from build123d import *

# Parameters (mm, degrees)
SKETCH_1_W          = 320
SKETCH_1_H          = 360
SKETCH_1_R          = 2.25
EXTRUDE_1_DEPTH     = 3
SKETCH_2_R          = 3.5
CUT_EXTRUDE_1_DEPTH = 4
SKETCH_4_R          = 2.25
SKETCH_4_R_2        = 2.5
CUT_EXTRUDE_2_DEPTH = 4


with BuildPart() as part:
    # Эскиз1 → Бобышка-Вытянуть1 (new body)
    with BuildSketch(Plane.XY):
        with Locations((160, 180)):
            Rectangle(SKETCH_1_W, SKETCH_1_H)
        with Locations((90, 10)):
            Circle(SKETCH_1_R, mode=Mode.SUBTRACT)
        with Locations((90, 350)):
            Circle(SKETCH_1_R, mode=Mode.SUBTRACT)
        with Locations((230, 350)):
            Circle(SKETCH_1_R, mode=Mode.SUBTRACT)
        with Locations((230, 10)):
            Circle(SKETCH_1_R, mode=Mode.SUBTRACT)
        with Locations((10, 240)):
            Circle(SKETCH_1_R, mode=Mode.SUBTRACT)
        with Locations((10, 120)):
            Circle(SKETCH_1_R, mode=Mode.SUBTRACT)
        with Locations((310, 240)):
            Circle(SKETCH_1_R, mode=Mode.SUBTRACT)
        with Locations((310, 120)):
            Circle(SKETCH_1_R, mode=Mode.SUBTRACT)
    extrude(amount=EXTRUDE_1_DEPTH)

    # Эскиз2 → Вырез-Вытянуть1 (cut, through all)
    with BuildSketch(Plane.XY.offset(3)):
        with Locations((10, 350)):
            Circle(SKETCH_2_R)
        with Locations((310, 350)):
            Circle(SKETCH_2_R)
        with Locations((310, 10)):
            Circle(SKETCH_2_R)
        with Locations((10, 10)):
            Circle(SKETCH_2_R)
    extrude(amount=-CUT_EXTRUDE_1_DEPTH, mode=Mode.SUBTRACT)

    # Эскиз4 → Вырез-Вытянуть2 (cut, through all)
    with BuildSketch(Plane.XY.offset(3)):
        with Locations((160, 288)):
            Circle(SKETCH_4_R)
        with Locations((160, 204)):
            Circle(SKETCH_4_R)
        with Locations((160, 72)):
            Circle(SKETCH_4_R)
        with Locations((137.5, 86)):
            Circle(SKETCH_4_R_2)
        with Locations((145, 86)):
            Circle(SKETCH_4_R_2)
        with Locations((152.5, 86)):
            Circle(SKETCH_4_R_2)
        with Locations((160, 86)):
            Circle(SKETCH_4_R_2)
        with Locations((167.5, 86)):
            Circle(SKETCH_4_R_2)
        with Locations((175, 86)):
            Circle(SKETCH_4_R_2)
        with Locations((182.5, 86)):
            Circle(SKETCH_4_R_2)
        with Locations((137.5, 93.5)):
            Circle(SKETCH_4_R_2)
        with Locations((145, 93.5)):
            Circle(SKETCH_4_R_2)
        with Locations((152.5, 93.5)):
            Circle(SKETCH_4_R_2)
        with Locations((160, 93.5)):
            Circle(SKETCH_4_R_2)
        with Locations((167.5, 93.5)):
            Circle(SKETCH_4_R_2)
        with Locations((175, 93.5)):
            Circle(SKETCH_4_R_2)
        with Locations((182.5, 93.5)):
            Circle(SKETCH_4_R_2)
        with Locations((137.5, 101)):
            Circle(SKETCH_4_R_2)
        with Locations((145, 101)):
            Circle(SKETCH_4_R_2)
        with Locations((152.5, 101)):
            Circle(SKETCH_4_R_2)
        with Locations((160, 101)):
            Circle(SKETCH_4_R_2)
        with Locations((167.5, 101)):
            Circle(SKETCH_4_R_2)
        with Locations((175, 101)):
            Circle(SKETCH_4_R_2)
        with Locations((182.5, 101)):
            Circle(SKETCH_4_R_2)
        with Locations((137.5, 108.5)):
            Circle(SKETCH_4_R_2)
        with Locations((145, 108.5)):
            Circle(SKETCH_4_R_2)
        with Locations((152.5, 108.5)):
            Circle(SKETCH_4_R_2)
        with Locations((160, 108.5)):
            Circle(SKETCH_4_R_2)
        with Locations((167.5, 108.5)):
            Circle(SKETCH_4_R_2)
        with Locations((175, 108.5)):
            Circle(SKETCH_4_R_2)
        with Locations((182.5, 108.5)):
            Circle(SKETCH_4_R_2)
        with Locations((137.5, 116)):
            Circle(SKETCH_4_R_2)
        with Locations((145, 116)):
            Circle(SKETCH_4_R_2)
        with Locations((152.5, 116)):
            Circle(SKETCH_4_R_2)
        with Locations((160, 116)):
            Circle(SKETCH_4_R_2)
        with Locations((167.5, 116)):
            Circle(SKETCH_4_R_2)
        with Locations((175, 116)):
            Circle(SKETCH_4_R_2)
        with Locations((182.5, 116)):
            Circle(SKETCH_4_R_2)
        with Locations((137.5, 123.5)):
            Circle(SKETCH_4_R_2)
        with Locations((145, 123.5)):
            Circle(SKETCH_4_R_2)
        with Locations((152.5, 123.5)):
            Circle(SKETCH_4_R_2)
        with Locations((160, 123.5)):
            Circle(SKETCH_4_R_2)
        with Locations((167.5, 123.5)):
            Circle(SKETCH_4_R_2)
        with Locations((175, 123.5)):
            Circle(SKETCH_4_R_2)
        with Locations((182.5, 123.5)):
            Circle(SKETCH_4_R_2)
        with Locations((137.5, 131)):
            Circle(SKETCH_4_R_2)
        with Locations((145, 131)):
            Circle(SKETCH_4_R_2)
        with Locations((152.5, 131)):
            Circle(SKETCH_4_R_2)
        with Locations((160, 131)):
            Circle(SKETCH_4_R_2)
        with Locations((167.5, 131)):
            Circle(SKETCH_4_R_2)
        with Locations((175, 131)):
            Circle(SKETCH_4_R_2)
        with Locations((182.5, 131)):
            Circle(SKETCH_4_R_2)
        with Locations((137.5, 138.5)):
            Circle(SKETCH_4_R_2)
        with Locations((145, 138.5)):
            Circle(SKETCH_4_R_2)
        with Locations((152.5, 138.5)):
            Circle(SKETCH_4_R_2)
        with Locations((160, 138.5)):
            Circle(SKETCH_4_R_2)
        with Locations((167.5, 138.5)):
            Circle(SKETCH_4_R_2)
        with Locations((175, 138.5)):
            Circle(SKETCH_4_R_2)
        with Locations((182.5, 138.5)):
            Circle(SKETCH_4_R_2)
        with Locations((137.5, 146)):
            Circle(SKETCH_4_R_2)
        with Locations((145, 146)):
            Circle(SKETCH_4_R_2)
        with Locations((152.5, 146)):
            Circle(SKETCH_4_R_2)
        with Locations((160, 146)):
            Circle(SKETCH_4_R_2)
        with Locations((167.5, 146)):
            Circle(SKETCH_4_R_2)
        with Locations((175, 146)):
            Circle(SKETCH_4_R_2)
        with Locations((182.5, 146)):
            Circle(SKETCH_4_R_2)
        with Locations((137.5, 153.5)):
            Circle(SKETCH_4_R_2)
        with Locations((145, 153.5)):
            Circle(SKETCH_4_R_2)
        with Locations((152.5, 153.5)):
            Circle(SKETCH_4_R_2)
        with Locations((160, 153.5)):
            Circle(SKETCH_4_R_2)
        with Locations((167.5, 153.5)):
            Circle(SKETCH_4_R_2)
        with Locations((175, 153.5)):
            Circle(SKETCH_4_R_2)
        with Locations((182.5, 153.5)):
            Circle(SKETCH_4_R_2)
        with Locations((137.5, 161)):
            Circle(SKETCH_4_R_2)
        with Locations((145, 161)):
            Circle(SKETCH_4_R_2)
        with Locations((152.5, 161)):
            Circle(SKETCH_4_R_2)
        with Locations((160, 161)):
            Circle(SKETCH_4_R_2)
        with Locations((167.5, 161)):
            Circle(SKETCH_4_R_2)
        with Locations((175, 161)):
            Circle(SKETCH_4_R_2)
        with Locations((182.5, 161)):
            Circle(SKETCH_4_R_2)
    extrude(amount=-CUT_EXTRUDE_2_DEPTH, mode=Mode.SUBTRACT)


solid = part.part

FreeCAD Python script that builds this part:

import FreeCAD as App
import Part
import Sketcher

V = App.Vector

doc = App.newDocument("Part")
body = doc.addObject("PartDesign::Body", "Body")

sketch1 = doc.addObject("Sketcher::SketchObject", "Sketch")
body.addObject(sketch1)
sketch1.AttachmentSupport = (doc.XY_Plane, [""])
sketch1.MapMode = "FlatFace"
sketch1.addGeometry([
    Part.LineSegment(V(0, 360, 0), V(0, 0, 0)),
    Part.LineSegment(V(0, 0, 0), V(320, 0, 0)),
    Part.LineSegment(V(320, 0, 0), V(320, 360, 0)),
    Part.LineSegment(V(320, 360, 0), V(0, 360, 0)),
    Part.Circle(V(90, 10, 0), V(0, 0, 1), 2.2),
    Part.Circle(V(10, 120, 0), V(0, 0, 1), 2.2),
    Part.Circle(V(230, 10, 0), V(0, 0, 1), 2.2),
    Part.Circle(V(310, 120, 0), V(0, 0, 1), 2.2),
    Part.Circle(V(10, 240, 0), V(0, 0, 1), 2.2),
    Part.Circle(V(90, 350, 0), V(0, 0, 1), 2.2),
    Part.Circle(V(310, 240, 0), V(0, 0, 1), 2.2),
    Part.Circle(V(230, 350, 0), V(0, 0, 1), 2.2),
], False)
sketch1.addConstraint([
    Sketcher.Constraint("Coincident", 0, 2, 1, 1),
    Sketcher.Constraint("Coincident", 1, 2, 2, 1),
    Sketcher.Constraint("Coincident", 2, 2, 3, 1),
    Sketcher.Constraint("Coincident", 3, 2, 0, 1),
    Sketcher.Constraint("Vertical", 0),
    Sketcher.Constraint("Horizontal", 1),
    Sketcher.Constraint("Vertical", 2),
    Sketcher.Constraint("Horizontal", 3),
    Sketcher.Constraint("Coincident", 0, 2, -1, 1),
    Sketcher.Constraint("Equal", 4, 5),
    Sketcher.Constraint("Equal", 5, 6),
    Sketcher.Constraint("Equal", 6, 7),
    Sketcher.Constraint("Equal", 7, 8),
    Sketcher.Constraint("Equal", 8, 9),
    Sketcher.Constraint("Equal", 9, 10),
    Sketcher.Constraint("Equal", 10, 11),
    Sketcher.Constraint("Horizontal", 4, 3, 6, 3),
    Sketcher.Constraint("Horizontal", 5, 3, 7, 3),
    Sketcher.Constraint("Horizontal", 8, 3, 10, 3),
    Sketcher.Constraint("Horizontal", 9, 3, 11, 3),
    Sketcher.Constraint("Vertical", 5, 3, 8, 3),
    Sketcher.Constraint("Vertical", 4, 3, 9, 3),
    Sketcher.Constraint("Vertical", 7, 3, 10, 3),
    Sketcher.Constraint("Vertical", 6, 3, 11, 3),
    Sketcher.Constraint("Diameter", 4, 4.5),
    Sketcher.Constraint("DistanceX", 1, 1, 1, 2, 320.0),
    Sketcher.Constraint("DistanceY", 0, 2, 0, 1, 360.0),
    Sketcher.Constraint("DistanceX", -1, 1, 4, 3, 90.0),
    Sketcher.Constraint("DistanceY", -1, 1, 4, 3, 10.0),
    Sketcher.Constraint("DistanceX", -1, 1, 5, 3, 10.0),
    Sketcher.Constraint("DistanceY", -1, 1, 5, 3, 120.0),
    Sketcher.Constraint("DistanceX", -1, 1, 6, 3, 230.0),
    Sketcher.Constraint("DistanceX", -1, 1, 7, 3, 310.0),
    Sketcher.Constraint("DistanceY", -1, 1, 8, 3, 240.0),
    Sketcher.Constraint("DistanceY", -1, 1, 9, 3, 350.0),
])
pad1 = doc.addObject("PartDesign::Pad", "Pad")
body.addObject(pad1)
pad1.Profile = sketch1
pad1.Length = 3

sketch2 = doc.addObject("Sketcher::SketchObject", "Sketch001")
body.addObject(sketch2)
sketch2.AttachmentSupport = (doc.XY_Plane, [""])
sketch2.MapMode = "FlatFace"
sketch2.AttachmentOffset = App.Placement(V(0, 0, 3), App.Rotation())
sketch2.addGeometry([
    Part.Circle(V(10, 350, 0), V(0, 0, 1), 3.5),
    Part.Circle(V(310, 350, 0), V(0, 0, 1), 3.5),
    Part.Circle(V(310, 10, 0), V(0, 0, 1), 3.5),
    Part.Circle(V(10, 10, 0), V(0, 0, 1), 3.5),
], False)
sketch2.addConstraint([
    Sketcher.Constraint("Equal", 0, 1),
    Sketcher.Constraint("Equal", 1, 2),
    Sketcher.Constraint("Equal", 2, 3),
    Sketcher.Constraint("Horizontal", 0, 3, 1, 3),
    Sketcher.Constraint("Horizontal", 2, 3, 3, 3),
    Sketcher.Constraint("Vertical", 1, 3, 2, 3),
    Sketcher.Constraint("Vertical", 0, 3, 3, 3),
    Sketcher.Constraint("Diameter", 0, 7.0),
    Sketcher.Constraint("DistanceX", -1, 1, 0, 3, 10.0),
    Sketcher.Constraint("DistanceY", -1, 1, 0, 3, 350.0),
    Sketcher.Constraint("DistanceX", -1, 1, 1, 3, 310.0),
    Sketcher.Constraint("DistanceY", -1, 1, 2, 3, 10.0),
])
pocket1 = doc.addObject("PartDesign::Pocket", "Pocket")
body.addObject(pocket1)
pocket1.Profile = sketch2
pocket1.Type = "ThroughAll"

sketch3 = doc.addObject("Sketcher::SketchObject", "Sketch002")
body.addObject(sketch3)
sketch3.AttachmentSupport = (doc.XY_Plane, [""])
sketch3.MapMode = "FlatFace"
sketch3.AttachmentOffset = App.Placement(V(0, 0, 3), App.Rotation())
sketch3.addGeometry([
    Part.Circle(V(160, 288, 0), V(0, 0, 1), 2.2),
    Part.Circle(V(160, 204, 0), V(0, 0, 1), 2.2),
    Part.Circle(V(160, 72, 0), V(0, 0, 1), 2.2),
    Part.Circle(V(137.5, 86, 0), V(0, 0, 1), 2.5),
    Part.Circle(V(145, 86, 0), V(0, 0, 1), 2.5),
    Part.Circle(V(152.5, 86, 0), V(0, 0, 1), 2.5),
    Part.Circle(V(160, 86, 0), V(0, 0, 1), 2.5),
    Part.Circle(V(167.5, 86, 0), V(0, 0, 1), 2.5),
    Part.Circle(V(175, 86, 0), V(0, 0, 1), 2.5),
    Part.Circle(V(182.5, 86, 0), V(0, 0, 1), 2.5),
    Part.Circle(V(137.5, 93.5, 0), V(0, 0, 1), 2.5),
    Part.Circle(V(145, 93.5, 0), V(0, 0, 1), 2.5),
    Part.Circle(V(152.5, 93.5, 0), V(0, 0, 1), 2.5),
    Part.Circle(V(160, 93.5, 0), V(0, 0, 1), 2.5),
    Part.Circle(V(167.5, 93.5, 0), V(0, 0, 1), 2.5),
    Part.Circle(V(175, 93.5, 0), V(0, 0, 1), 2.5),
    Part.Circle(V(182.5, 93.5, 0), V(0, 0, 1), 2.5),
    Part.Circle(V(137.5, 101, 0), V(0, 0, 1), 2.5),
    Part.Circle(V(145, 101, 0), V(0, 0, 1), 2.5),
    Part.Circle(V(152.5, 101, 0), V(0, 0, 1), 2.5),
    Part.Circle(V(160, 101, 0), V(0, 0, 1), 2.5),
    Part.Circle(V(167.5, 101, 0), V(0, 0, 1), 2.5),
    Part.Circle(V(175, 101, 0), V(0, 0, 1), 2.5),
    Part.Circle(V(182.5, 101, 0), V(0, 0, 1), 2.5),
    Part.Circle(V(137.5, 108.5, 0), V(0, 0, 1), 2.5),
    Part.Circle(V(145, 108.5, 0), V(0, 0, 1), 2.5),
    Part.Circle(V(152.5, 108.5, 0), V(0, 0, 1), 2.5),
    Part.Circle(V(160, 108.5, 0), V(0, 0, 1), 2.5),
    Part.Circle(V(167.5, 108.5, 0), V(0, 0, 1), 2.5),
    Part.Circle(V(175, 108.5, 0), V(0, 0, 1), 2.5),
    Part.Circle(V(182.5, 108.5, 0), V(0, 0, 1), 2.5),
    Part.Circle(V(137.5, 116, 0), V(0, 0, 1), 2.5),
    Part.Circle(V(145, 116, 0), V(0, 0, 1), 2.5),
    Part.Circle(V(152.5, 116, 0), V(0, 0, 1), 2.5),
    Part.Circle(V(160, 116, 0), V(0, 0, 1), 2.5),
    Part.Circle(V(167.5, 116, 0), V(0, 0, 1), 2.5),
    Part.Circle(V(175, 116, 0), V(0, 0, 1), 2.5),
    Part.Circle(V(182.5, 116, 0), V(0, 0, 1), 2.5),
    Part.Circle(V(137.5, 123.5, 0), V(0, 0, 1), 2.5),
    Part.Circle(V(145, 123.5, 0), V(0, 0, 1), 2.5),
    Part.Circle(V(152.5, 123.5, 0), V(0, 0, 1), 2.5),
    Part.Circle(V(160, 123.5, 0), V(0, 0, 1), 2.5),
    Part.Circle(V(167.5, 123.5, 0), V(0, 0, 1), 2.5),
    Part.Circle(V(175, 123.5, 0), V(0, 0, 1), 2.5),
    Part.Circle(V(182.5, 123.5, 0), V(0, 0, 1), 2.5),
    Part.Circle(V(137.5, 131, 0), V(0, 0, 1), 2.5),
    Part.Circle(V(145, 131, 0), V(0, 0, 1), 2.5),
    Part.Circle(V(152.5, 131, 0), V(0, 0, 1), 2.5),
    Part.Circle(V(160, 131, 0), V(0, 0, 1), 2.5),
    Part.Circle(V(167.5, 131, 0), V(0, 0, 1), 2.5),
    Part.Circle(V(175, 131, 0), V(0, 0, 1), 2.5),
    Part.Circle(V(182.5, 131, 0), V(0, 0, 1), 2.5),
    Part.Circle(V(137.5, 138.5, 0), V(0, 0, 1), 2.5),
    Part.Circle(V(145, 138.5, 0), V(0, 0, 1), 2.5),
    Part.Circle(V(152.5, 138.5, 0), V(0, 0, 1), 2.5),
    Part.Circle(V(160, 138.5, 0), V(0, 0, 1), 2.5),
    Part.Circle(V(167.5, 138.5, 0), V(0, 0, 1), 2.5),
    Part.Circle(V(175, 138.5, 0), V(0, 0, 1), 2.5),
    Part.Circle(V(182.5, 138.5, 0), V(0, 0, 1), 2.5),
    Part.Circle(V(137.5, 146, 0), V(0, 0, 1), 2.5),
    Part.Circle(V(145, 146, 0), V(0, 0, 1), 2.5),
    Part.Circle(V(152.5, 146, 0), V(0, 0, 1), 2.5),
    Part.Circle(V(160, 146, 0), V(0, 0, 1), 2.5),
    Part.Circle(V(167.5, 146, 0), V(0, 0, 1), 2.5),
    Part.Circle(V(175, 146, 0), V(0, 0, 1), 2.5),
    Part.Circle(V(182.5, 146, 0), V(0, 0, 1), 2.5),
    Part.Circle(V(137.5, 153.5, 0), V(0, 0, 1), 2.5),
    Part.Circle(V(145, 153.5, 0), V(0, 0, 1), 2.5),
    Part.Circle(V(152.5, 153.5, 0), V(0, 0, 1), 2.5),
    Part.Circle(V(160, 153.5, 0), V(0, 0, 1), 2.5),
    Part.Circle(V(167.5, 153.5, 0), V(0, 0, 1), 2.5),
    Part.Circle(V(175, 153.5, 0), V(0, 0, 1), 2.5),
    Part.Circle(V(182.5, 153.5, 0), V(0, 0, 1), 2.5),
    Part.Circle(V(137.5, 161, 0), V(0, 0, 1), 2.5),
    Part.Circle(V(145, 161, 0), V(0, 0, 1), 2.5),
    Part.Circle(V(152.5, 161, 0), V(0, 0, 1), 2.5),
    Part.Circle(V(160, 161, 0), V(0, 0, 1), 2.5),
    Part.Circle(V(167.5, 161, 0), V(0, 0, 1), 2.5),
    Part.Circle(V(175, 161, 0), V(0, 0, 1), 2.5),
    Part.Circle(V(182.5, 161, 0), V(0, 0, 1), 2.5),
], False)
sketch3.addConstraint([
    Sketcher.Constraint("Equal", 0, 1),
    Sketcher.Constraint("Equal", 1, 2),
    Sketcher.Constraint("Equal", 3, 4),
    Sketcher.Constraint("Equal", 4, 5),
    Sketcher.Constraint("Equal", 5, 6),
    Sketcher.Constraint("Equal", 6, 7),
    Sketcher.Constraint("Equal", 7, 8),
    Sketcher.Constraint("Equal", 8, 9),
    Sketcher.Constraint("Equal", 9, 10),
    Sketcher.Constraint("Equal", 10, 11),
    Sketcher.Constraint("Equal", 11, 12),
    Sketcher.Constraint("Equal", 12, 13),
    Sketcher.Constraint("Equal", 13, 14),
    Sketcher.Constraint("Equal", 14, 15),
    Sketcher.Constraint("Equal", 15, 16),
    Sketcher.Constraint("Equal", 16, 17),
    Sketcher.Constraint("Equal", 17, 18),
    Sketcher.Constraint("Equal", 18, 19),
    Sketcher.Constraint("Equal", 19, 20),
    Sketcher.Constraint("Equal", 20, 21),
    Sketcher.Constraint("Equal", 21, 22),
    Sketcher.Constraint("Equal", 22, 23),
    Sketcher.Constraint("Equal", 23, 24),
    Sketcher.Constraint("Equal", 24, 25),
    Sketcher.Constraint("Equal", 25, 26),
    Sketcher.Constraint("Equal", 26, 27),
    Sketcher.Constraint("Equal", 27, 28),
    Sketcher.Constraint("Equal", 28, 29),
    Sketcher.Constraint("Equal", 29, 30),
    Sketcher.Constraint("Equal", 30, 31),
    Sketcher.Constraint("Equal", 31, 32),
    Sketcher.Constraint("Equal", 32, 33),
    Sketcher.Constraint("Equal", 33, 34),
    Sketcher.Constraint("Equal", 34, 35),
    Sketcher.Constraint("Equal", 35, 36),
    Sketcher.Constraint("Equal", 36, 37),
    Sketcher.Constraint("Equal", 37, 38),
    Sketcher.Constraint("Equal", 38, 39),
    Sketcher.Constraint("Equal", 39, 40),
    Sketcher.Constraint("Equal", 40, 41),
    Sketcher.Constraint("Equal", 41, 42),
    Sketcher.Constraint("Equal", 42, 43),
    Sketcher.Constraint("Equal", 43, 44),
    Sketcher.Constraint("Equal", 44, 45),
    Sketcher.Constraint("Equal", 45, 46),
    Sketcher.Constraint("Equal", 46, 47),
    Sketcher.Constraint("Equal", 47, 48),
    Sketcher.Constraint("Equal", 48, 49),
    Sketcher.Constraint("Equal", 49, 50),
    Sketcher.Constraint("Equal", 50, 51),
    Sketcher.Constraint("Equal", 51, 52),
    Sketcher.Constraint("Equal", 52, 53),
    Sketcher.Constraint("Equal", 53, 54),
    Sketcher.Constraint("Equal", 54, 55),
    Sketcher.Constraint("Equal", 55, 56),
    Sketcher.Constraint("Equal", 56, 57),
    Sketcher.Constraint("Equal", 57, 58),
    Sketcher.Constraint("Equal", 58, 59),
    Sketcher.Constraint("Equal", 59, 60),
    Sketcher.Constraint("Equal", 60, 61),
    Sketcher.Constraint("Equal", 61, 62),
    Sketcher.Constraint("Equal", 62, 63),
    Sketcher.Constraint("Equal", 63, 64),
    Sketcher.Constraint("Equal", 64, 65),
    Sketcher.Constraint("Equal", 65, 66),
    Sketcher.Constraint("Equal", 66, 67),
    Sketcher.Constraint("Equal", 67, 68),
    Sketcher.Constraint("Equal", 68, 69),
    Sketcher.Constraint("Equal", 69, 70),
    Sketcher.Constraint("Equal", 70, 71),
    Sketcher.Constraint("Equal", 71, 72),
    Sketcher.Constraint("Equal", 72, 73),
    Sketcher.Constraint("Equal", 73, 74),
    Sketcher.Constraint("Equal", 74, 75),
    Sketcher.Constraint("Equal", 75, 76),
    Sketcher.Constraint("Equal", 76, 77),
    Sketcher.Constraint("Equal", 77, 78),
    Sketcher.Constraint("Equal", 78, 79),
    Sketcher.Constraint("Horizontal", 3, 3, 4, 3),
    Sketcher.Constraint("Horizontal", 4, 3, 5, 3),
    Sketcher.Constraint("Horizontal", 5, 3, 6, 3),
    Sketcher.Constraint("Horizontal", 6, 3, 7, 3),
    Sketcher.Constraint("Horizontal", 7, 3, 8, 3),
    Sketcher.Constraint("Horizontal", 8, 3, 9, 3),
    Sketcher.Constraint("Horizontal", 10, 3, 11, 3),
    Sketcher.Constraint("Horizontal", 11, 3, 12, 3),
    Sketcher.Constraint("Horizontal", 12, 3, 13, 3),
    Sketcher.Constraint("Horizontal", 13, 3, 14, 3),
    Sketcher.Constraint("Horizontal", 14, 3, 15, 3),
    Sketcher.Constraint("Horizontal", 15, 3, 16, 3),
    Sketcher.Constraint("Horizontal", 17, 3, 18, 3),
    Sketcher.Constraint("Horizontal", 18, 3, 19, 3),
    Sketcher.Constraint("Horizontal", 19, 3, 20, 3),
    Sketcher.Constraint("Horizontal", 20, 3, 21, 3),
    Sketcher.Constraint("Horizontal", 21, 3, 22, 3),
    Sketcher.Constraint("Horizontal", 22, 3, 23, 3),
    Sketcher.Constraint("Horizontal", 24, 3, 25, 3),
    Sketcher.Constraint("Horizontal", 25, 3, 26, 3),
    Sketcher.Constraint("Horizontal", 26, 3, 27, 3),
    Sketcher.Constraint("Horizontal", 27, 3, 28, 3),
    Sketcher.Constraint("Horizontal", 28, 3, 29, 3),
    Sketcher.Constraint("Horizontal", 29, 3, 30, 3),
    Sketcher.Constraint("Horizontal", 31, 3, 32, 3),
    Sketcher.Constraint("Horizontal", 32, 3, 33, 3),
    Sketcher.Constraint("Horizontal", 33, 3, 34, 3),
    Sketcher.Constraint("Horizontal", 34, 3, 35, 3),
    Sketcher.Constraint("Horizontal", 35, 3, 36, 3),
    Sketcher.Constraint("Horizontal", 36, 3, 37, 3),
    Sketcher.Constraint("Horizontal", 38, 3, 39, 3),
    Sketcher.Constraint("Horizontal", 39, 3, 40, 3),
    Sketcher.Constraint("Horizontal", 40, 3, 41, 3),
    Sketcher.Constraint("Horizontal", 41, 3, 42, 3),
    Sketcher.Constraint("Horizontal", 42, 3, 43, 3),
    Sketcher.Constraint("Horizontal", 43, 3, 44, 3),
    Sketcher.Constraint("Horizontal", 45, 3, 46, 3),
    Sketcher.Constraint("Horizontal", 46, 3, 47, 3),
    Sketcher.Constraint("Horizontal", 47, 3, 48, 3),
    Sketcher.Constraint("Horizontal", 48, 3, 49, 3),
    Sketcher.Constraint("Horizontal", 49, 3, 50, 3),
    Sketcher.Constraint("Horizontal", 50, 3, 51, 3),
    Sketcher.Constraint("Horizontal", 52, 3, 53, 3),
    Sketcher.Constraint("Horizontal", 53, 3, 54, 3),
    Sketcher.Constraint("Horizontal", 54, 3, 55, 3),
    Sketcher.Constraint("Horizontal", 55, 3, 56, 3),
    Sketcher.Constraint("Horizontal", 56, 3, 57, 3),
    Sketcher.Constraint("Horizontal", 57, 3, 58, 3),
    Sketcher.Constraint("Horizontal", 59, 3, 60, 3),
    Sketcher.Constraint("Horizontal", 60, 3, 61, 3),
    Sketcher.Constraint("Horizontal", 61, 3, 62, 3),
    Sketcher.Constraint("Horizontal", 62, 3, 63, 3),
    Sketcher.Constraint("Horizontal", 63, 3, 64, 3),
    Sketcher.Constraint("Horizontal", 64, 3, 65, 3),
    Sketcher.Constraint("Horizontal", 66, 3, 67, 3),
    Sketcher.Constraint("Horizontal", 67, 3, 68, 3),
    Sketcher.Constraint("Horizontal", 68, 3, 69, 3),
    Sketcher.Constraint("Horizontal", 69, 3, 70, 3),
    Sketcher.Constraint("Horizontal", 70, 3, 71, 3),
    Sketcher.Constraint("Horizontal", 71, 3, 72, 3),
    Sketcher.Constraint("Horizontal", 73, 3, 74, 3),
    Sketcher.Constraint("Horizontal", 74, 3, 75, 3),
    Sketcher.Constraint("Horizontal", 75, 3, 76, 3),
    Sketcher.Constraint("Horizontal", 76, 3, 77, 3),
    Sketcher.Constraint("Horizontal", 77, 3, 78, 3),
    Sketcher.Constraint("Horizontal", 78, 3, 79, 3),
    Sketcher.Constraint("Vertical", 0, 3, 1, 3),
    Sketcher.Constraint("Vertical", 1, 3, 2, 3),
    Sketcher.Constraint("Vertical", 2, 3, 6, 3),
    Sketcher.Constraint("Vertical", 3, 3, 10, 3),
    Sketcher.Constraint("Vertical", 4, 3, 11, 3),
    Sketcher.Constraint("Vertical", 5, 3, 12, 3),
    Sketcher.Constraint("Vertical", 6, 3, 13, 3),
    Sketcher.Constraint("Vertical", 7, 3, 14, 3),
    Sketcher.Constraint("Vertical", 8, 3, 15, 3),
    Sketcher.Constraint("Vertical", 9, 3, 16, 3),
    Sketcher.Constraint("Vertical", 10, 3, 17, 3),
    Sketcher.Constraint("Vertical", 11, 3, 18, 3),
    Sketcher.Constraint("Vertical", 12, 3, 19, 3),
    Sketcher.Constraint("Vertical", 13, 3, 20, 3),
    Sketcher.Constraint("Vertical", 14, 3, 21, 3),
    Sketcher.Constraint("Vertical", 15, 3, 22, 3),
    Sketcher.Constraint("Vertical", 16, 3, 23, 3),
    Sketcher.Constraint("Vertical", 17, 3, 24, 3),
    Sketcher.Constraint("Vertical", 18, 3, 25, 3),
    Sketcher.Constraint("Vertical", 19, 3, 26, 3),
    Sketcher.Constraint("Vertical", 20, 3, 27, 3),
    Sketcher.Constraint("Vertical", 21, 3, 28, 3),
    Sketcher.Constraint("Vertical", 22, 3, 29, 3),
    Sketcher.Constraint("Vertical", 23, 3, 30, 3),
    Sketcher.Constraint("Vertical", 24, 3, 31, 3),
    Sketcher.Constraint("Vertical", 25, 3, 32, 3),
    Sketcher.Constraint("Vertical", 26, 3, 33, 3),
    Sketcher.Constraint("Vertical", 27, 3, 34, 3),
    Sketcher.Constraint("Vertical", 28, 3, 35, 3),
    Sketcher.Constraint("Vertical", 29, 3, 36, 3),
    Sketcher.Constraint("Vertical", 30, 3, 37, 3),
    Sketcher.Constraint("Vertical", 31, 3, 38, 3),
    Sketcher.Constraint("Vertical", 32, 3, 39, 3),
    Sketcher.Constraint("Vertical", 33, 3, 40, 3),
    Sketcher.Constraint("Vertical", 34, 3, 41, 3),
    Sketcher.Constraint("Vertical", 35, 3, 42, 3),
    Sketcher.Constraint("Vertical", 36, 3, 43, 3),
    Sketcher.Constraint("Vertical", 37, 3, 44, 3),
    Sketcher.Constraint("Vertical", 38, 3, 45, 3),
    Sketcher.Constraint("Vertical", 39, 3, 46, 3),
    Sketcher.Constraint("Vertical", 40, 3, 47, 3),
    Sketcher.Constraint("Vertical", 41, 3, 48, 3),
    Sketcher.Constraint("Vertical", 42, 3, 49, 3),
    Sketcher.Constraint("Vertical", 43, 3, 50, 3),
    Sketcher.Constraint("Vertical", 44, 3, 51, 3),
    Sketcher.Constraint("Vertical", 45, 3, 52, 3),
    Sketcher.Constraint("Vertical", 46, 3, 53, 3),
    Sketcher.Constraint("Vertical", 47, 3, 54, 3),
    Sketcher.Constraint("Vertical", 48, 3, 55, 3),
    Sketcher.Constraint("Vertical", 49, 3, 56, 3),
    Sketcher.Constraint("Vertical", 50, 3, 57, 3),
    Sketcher.Constraint("Vertical", 51, 3, 58, 3),
    Sketcher.Constraint("Vertical", 52, 3, 59, 3),
    Sketcher.Constraint("Vertical", 53, 3, 60, 3),
    Sketcher.Constraint("Vertical", 54, 3, 61, 3),
    Sketcher.Constraint("Vertical", 55, 3, 62, 3),
    Sketcher.Constraint("Vertical", 56, 3, 63, 3),
    Sketcher.Constraint("Vertical", 57, 3, 64, 3),
    Sketcher.Constraint("Vertical", 58, 3, 65, 3),
    Sketcher.Constraint("Vertical", 59, 3, 66, 3),
    Sketcher.Constraint("Vertical", 60, 3, 67, 3),
    Sketcher.Constraint("Vertical", 61, 3, 68, 3),
    Sketcher.Constraint("Vertical", 62, 3, 69, 3),
    Sketcher.Constraint("Vertical", 63, 3, 70, 3),
    Sketcher.Constraint("Vertical", 64, 3, 71, 3),
    Sketcher.Constraint("Vertical", 65, 3, 72, 3),
    Sketcher.Constraint("Vertical", 66, 3, 73, 3),
    Sketcher.Constraint("Vertical", 67, 3, 74, 3),
    Sketcher.Constraint("Vertical", 68, 3, 75, 3),
    Sketcher.Constraint("Vertical", 69, 3, 76, 3),
    Sketcher.Constraint("Vertical", 70, 3, 77, 3),
    Sketcher.Constraint("Vertical", 71, 3, 78, 3),
    Sketcher.Constraint("Vertical", 72, 3, 79, 3),
    Sketcher.Constraint("Diameter", 3, 5.0),
    Sketcher.Constraint("Diameter", 0, 4.5),
    Sketcher.Constraint("DistanceX", -1, 1, 0, 3, 160.0),
    Sketcher.Constraint("DistanceY", -1, 1, 0, 3, 288.0),
    Sketcher.Constraint("DistanceY", -1, 1, 1, 3, 204.0),
    Sketcher.Constraint("DistanceY", -1, 1, 2, 3, 72.0),
    Sketcher.Constraint("DistanceY", -1, 1, 3, 3, 86.0),
    Sketcher.Constraint("DistanceX", -1, 1, 4, 3, 145.0),
    Sketcher.Constraint("DistanceX", -1, 1, 8, 3, 175.0),
    Sketcher.Constraint("DistanceY", -1, 1, 17, 3, 101.0),
    Sketcher.Constraint("DistanceY", -1, 1, 31, 3, 116.0),
    Sketcher.Constraint("DistanceY", -1, 1, 45, 3, 131.0),
    Sketcher.Constraint("DistanceY", -1, 1, 59, 3, 146.0),
    Sketcher.Constraint("DistanceY", -1, 1, 73, 3, 161.0),
    Sketcher.Constraint("DistanceX", -1, 1, 3, 3, 137.5),
    Sketcher.Constraint("DistanceX", -1, 1, 5, 3, 152.5),
    Sketcher.Constraint("DistanceX", -1, 1, 7, 3, 167.5),
    Sketcher.Constraint("DistanceX", -1, 1, 9, 3, 182.5),
    Sketcher.Constraint("DistanceY", -1, 1, 10, 3, 93.5),
    Sketcher.Constraint("DistanceY", -1, 1, 24, 3, 108.5),
    Sketcher.Constraint("DistanceY", -1, 1, 38, 3, 123.5),
    Sketcher.Constraint("DistanceY", -1, 1, 52, 3, 138.5),
    Sketcher.Constraint("DistanceY", -1, 1, 66, 3, 153.5),
])
pocket2 = doc.addObject("PartDesign::Pocket", "Pocket001")
body.addObject(pocket2)
pocket2.Profile = sketch3
pocket2.Type = "ThroughAll"

doc.recompute()
